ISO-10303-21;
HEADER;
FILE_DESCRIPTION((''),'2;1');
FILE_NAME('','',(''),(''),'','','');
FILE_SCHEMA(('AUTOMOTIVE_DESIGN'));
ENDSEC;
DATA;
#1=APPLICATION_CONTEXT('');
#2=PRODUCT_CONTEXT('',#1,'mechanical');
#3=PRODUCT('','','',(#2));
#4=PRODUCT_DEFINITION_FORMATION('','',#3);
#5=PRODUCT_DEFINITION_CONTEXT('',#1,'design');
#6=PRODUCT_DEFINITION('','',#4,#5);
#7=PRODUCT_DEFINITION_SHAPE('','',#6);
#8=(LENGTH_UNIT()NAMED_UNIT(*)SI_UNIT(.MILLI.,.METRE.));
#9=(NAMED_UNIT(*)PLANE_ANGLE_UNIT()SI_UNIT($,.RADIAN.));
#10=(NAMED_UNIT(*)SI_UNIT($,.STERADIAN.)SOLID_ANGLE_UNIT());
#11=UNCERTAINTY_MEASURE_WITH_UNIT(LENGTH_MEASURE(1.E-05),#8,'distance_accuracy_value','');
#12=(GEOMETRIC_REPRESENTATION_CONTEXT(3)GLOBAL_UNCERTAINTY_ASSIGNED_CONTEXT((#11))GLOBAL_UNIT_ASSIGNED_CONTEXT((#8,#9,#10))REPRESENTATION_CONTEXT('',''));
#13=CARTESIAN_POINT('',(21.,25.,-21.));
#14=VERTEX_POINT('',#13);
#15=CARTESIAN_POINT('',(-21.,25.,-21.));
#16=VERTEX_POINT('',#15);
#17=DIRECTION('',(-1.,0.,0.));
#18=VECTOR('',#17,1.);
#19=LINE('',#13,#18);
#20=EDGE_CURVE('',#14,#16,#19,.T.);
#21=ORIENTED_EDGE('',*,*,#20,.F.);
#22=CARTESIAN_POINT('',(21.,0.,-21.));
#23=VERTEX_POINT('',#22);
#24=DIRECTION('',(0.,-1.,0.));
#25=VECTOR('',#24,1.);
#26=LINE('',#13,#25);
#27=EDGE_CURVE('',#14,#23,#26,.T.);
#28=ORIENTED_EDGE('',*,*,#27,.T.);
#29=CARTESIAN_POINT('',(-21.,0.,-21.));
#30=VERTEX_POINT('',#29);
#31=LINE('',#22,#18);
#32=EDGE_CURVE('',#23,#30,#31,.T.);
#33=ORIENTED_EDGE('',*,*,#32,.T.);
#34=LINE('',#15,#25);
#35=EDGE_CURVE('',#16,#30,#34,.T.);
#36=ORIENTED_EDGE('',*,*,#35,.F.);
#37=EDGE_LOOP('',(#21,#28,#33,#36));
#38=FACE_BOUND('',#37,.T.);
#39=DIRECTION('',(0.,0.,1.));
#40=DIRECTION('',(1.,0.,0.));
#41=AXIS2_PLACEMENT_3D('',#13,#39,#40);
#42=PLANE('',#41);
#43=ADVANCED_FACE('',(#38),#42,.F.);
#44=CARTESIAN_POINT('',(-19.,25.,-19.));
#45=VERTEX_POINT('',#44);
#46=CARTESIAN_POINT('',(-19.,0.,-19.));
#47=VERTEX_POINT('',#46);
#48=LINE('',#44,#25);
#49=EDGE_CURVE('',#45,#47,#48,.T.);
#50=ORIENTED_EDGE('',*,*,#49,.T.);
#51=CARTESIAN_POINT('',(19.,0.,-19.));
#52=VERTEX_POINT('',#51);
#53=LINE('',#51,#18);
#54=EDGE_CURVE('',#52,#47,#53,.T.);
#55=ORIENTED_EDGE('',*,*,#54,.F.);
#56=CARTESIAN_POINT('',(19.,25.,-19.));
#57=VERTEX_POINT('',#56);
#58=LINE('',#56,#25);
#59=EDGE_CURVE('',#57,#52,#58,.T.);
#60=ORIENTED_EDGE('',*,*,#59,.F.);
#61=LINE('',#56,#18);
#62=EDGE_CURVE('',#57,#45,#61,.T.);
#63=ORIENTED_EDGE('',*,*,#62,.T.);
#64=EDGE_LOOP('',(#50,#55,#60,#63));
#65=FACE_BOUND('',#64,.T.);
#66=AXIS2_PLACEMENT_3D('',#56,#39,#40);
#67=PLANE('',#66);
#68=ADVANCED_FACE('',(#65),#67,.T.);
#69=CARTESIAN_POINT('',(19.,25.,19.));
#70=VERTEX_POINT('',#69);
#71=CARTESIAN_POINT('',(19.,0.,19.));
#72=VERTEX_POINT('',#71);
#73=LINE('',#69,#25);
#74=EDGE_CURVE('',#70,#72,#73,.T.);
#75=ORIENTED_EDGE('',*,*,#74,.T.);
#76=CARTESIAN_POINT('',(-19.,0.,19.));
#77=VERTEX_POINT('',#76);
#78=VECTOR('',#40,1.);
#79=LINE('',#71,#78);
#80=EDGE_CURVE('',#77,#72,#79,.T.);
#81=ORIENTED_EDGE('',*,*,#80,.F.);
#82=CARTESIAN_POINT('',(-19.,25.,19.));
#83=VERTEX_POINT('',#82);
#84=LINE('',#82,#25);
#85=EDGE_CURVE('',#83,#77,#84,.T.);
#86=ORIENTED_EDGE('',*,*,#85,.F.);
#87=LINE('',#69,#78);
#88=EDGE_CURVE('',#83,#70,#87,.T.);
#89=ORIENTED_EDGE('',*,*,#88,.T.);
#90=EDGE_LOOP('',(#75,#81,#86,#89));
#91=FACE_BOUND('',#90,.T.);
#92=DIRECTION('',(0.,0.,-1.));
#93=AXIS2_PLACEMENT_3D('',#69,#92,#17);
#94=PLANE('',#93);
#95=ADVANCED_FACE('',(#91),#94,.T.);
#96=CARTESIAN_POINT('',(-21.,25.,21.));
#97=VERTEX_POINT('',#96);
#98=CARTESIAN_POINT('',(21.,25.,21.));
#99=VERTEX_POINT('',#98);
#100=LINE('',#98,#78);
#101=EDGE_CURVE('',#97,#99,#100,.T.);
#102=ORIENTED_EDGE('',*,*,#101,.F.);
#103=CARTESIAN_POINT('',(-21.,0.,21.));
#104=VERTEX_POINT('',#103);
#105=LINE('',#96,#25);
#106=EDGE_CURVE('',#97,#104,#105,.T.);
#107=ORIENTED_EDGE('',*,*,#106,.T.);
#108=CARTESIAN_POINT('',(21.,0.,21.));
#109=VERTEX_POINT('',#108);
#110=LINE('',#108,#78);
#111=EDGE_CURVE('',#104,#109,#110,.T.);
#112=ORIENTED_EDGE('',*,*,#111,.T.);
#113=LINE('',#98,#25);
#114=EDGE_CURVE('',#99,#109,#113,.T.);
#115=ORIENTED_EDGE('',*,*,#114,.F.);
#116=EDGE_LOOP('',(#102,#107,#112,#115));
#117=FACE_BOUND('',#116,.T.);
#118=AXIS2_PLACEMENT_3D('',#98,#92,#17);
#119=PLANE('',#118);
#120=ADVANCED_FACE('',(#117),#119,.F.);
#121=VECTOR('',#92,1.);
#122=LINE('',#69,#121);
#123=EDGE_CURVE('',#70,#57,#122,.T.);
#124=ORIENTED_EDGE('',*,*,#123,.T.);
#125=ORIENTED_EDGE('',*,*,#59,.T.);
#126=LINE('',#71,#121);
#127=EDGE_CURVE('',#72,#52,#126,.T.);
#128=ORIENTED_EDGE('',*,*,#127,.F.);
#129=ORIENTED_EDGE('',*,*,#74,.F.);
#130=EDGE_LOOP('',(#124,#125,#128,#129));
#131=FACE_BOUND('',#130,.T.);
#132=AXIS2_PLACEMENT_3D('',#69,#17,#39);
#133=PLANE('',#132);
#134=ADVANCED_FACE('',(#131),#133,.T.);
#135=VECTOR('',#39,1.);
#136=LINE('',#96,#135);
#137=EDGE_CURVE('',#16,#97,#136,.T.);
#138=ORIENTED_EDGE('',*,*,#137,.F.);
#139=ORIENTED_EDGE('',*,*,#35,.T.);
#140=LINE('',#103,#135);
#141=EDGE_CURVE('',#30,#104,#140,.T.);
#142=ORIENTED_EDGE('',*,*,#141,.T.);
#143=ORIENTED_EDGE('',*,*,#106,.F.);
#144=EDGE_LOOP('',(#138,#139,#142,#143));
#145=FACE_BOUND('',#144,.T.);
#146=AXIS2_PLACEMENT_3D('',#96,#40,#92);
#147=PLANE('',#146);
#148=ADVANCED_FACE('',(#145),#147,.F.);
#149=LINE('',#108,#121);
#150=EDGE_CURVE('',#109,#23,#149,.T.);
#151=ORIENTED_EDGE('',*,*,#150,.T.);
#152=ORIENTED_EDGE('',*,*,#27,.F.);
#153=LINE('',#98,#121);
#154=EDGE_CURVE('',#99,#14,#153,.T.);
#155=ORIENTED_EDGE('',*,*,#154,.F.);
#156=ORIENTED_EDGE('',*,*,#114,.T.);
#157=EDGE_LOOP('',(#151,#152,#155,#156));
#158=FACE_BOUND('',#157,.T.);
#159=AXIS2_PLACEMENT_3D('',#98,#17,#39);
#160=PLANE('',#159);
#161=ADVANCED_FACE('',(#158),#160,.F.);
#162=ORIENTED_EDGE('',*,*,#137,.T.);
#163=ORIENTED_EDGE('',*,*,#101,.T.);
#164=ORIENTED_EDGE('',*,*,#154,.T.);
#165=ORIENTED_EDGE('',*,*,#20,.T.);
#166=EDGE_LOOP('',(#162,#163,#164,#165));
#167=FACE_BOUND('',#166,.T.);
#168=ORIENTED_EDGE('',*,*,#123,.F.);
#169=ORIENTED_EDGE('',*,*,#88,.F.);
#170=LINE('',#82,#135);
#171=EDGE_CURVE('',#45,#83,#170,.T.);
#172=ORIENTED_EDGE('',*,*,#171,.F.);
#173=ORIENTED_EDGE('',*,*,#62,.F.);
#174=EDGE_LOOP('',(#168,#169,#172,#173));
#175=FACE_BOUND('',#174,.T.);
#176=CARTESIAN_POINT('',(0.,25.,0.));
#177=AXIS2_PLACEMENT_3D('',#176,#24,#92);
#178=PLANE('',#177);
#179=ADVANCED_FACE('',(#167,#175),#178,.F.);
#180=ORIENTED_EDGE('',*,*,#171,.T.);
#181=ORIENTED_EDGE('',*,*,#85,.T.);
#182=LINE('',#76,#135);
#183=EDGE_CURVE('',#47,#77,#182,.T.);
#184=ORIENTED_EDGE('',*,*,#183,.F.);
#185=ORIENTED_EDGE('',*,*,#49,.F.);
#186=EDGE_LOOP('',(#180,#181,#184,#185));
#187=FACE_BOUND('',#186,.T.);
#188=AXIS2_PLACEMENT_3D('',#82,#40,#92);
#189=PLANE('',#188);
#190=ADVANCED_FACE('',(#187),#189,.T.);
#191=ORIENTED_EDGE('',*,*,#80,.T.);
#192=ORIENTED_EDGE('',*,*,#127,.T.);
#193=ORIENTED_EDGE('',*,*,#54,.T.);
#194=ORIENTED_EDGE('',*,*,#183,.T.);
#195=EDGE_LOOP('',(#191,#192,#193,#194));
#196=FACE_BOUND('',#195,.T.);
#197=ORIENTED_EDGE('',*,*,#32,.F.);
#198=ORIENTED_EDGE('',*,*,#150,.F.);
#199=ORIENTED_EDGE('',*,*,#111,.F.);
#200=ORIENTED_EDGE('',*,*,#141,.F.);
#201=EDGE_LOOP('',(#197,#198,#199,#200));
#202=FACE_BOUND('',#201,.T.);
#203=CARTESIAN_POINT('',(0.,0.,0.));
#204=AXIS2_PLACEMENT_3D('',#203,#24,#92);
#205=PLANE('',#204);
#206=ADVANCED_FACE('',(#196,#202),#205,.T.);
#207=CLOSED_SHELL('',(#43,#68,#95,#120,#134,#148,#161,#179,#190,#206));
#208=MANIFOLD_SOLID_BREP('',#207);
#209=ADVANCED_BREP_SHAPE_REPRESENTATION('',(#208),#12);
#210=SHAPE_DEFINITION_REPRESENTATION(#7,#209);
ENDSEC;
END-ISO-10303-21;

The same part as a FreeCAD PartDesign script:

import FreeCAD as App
import Part
import Sketcher
from FreeCAD import Vector


def add_polygon(sketch, points):
    """Adds a closed chain of lines whose ends are joined by coincident constraints."""
    first, n = sketch.GeometryCount, len(points)
    for a, b in zip(points, points[1:] + points[:1]):
        sketch.addGeometry(Part.LineSegment(App.Vector(*a, 0), App.Vector(*b, 0)), False)
    for i in range(n):
        sketch.addConstraint(Sketcher.Constraint("Coincident", first + i, 2, first + (i + 1) % n, 1))

doc = App.newDocument("Part")
body = doc.addObject("PartDesign::Body", "Body")

sketch1 = body.newObject("Sketcher::SketchObject", "Sketch")
sketch1.AttachmentSupport = (doc.getObject("XZ_Plane"), [""])
sketch1.MapMode = "FlatFace"
add_polygon(sketch1, [(-21, -21), (-21, 21), (21, 21), (21, -21)])
add_polygon(sketch1, [(19, 19), (-19, 19), (-19, -19), (19, -19)])
sketch1.addConstraint(Sketcher.Constraint("Vertical", 0))
sketch1.addConstraint(Sketcher.Constraint("Horizontal", 1))
sketch1.addConstraint(Sketcher.Constraint("Vertical", 2))
sketch1.addConstraint(Sketcher.Constraint("Horizontal", 3))
sketch1.addConstraint(Sketcher.Constraint("Horizontal", 4))
sketch1.addConstraint(Sketcher.Constraint("Vertical", 5))
sketch1.addConstraint(Sketcher.Constraint("Horizontal", 6))
sketch1.addConstraint(Sketcher.Constraint("Vertical", 7))
sketch1.addConstraint(Sketcher.Constraint("Symmetric", 0, 2, 2, 2, -1, 1))
sketch1.addConstraint(Sketcher.Constraint("Symmetric", 4, 2, 6, 2, -1, 1))
sketch1.addConstraint(Sketcher.Constraint("Equal", 3, 0))
sketch1.addConstraint(Sketcher.Constraint("Equal", 6, 5))
sketch1.addConstraint(Sketcher.Constraint("DistanceX", 1, 1, 1, 2, 42.0))
sketch1.addConstraint(Sketcher.Constraint("DistanceX", 4, 2, 4, 1, 38.0))
pad1 = body.newObject("PartDesign::Pad", "Pad")
pad1.Profile = sketch1
pad1.Length = 25
pad1.Reversed = True

doc.recompute()
